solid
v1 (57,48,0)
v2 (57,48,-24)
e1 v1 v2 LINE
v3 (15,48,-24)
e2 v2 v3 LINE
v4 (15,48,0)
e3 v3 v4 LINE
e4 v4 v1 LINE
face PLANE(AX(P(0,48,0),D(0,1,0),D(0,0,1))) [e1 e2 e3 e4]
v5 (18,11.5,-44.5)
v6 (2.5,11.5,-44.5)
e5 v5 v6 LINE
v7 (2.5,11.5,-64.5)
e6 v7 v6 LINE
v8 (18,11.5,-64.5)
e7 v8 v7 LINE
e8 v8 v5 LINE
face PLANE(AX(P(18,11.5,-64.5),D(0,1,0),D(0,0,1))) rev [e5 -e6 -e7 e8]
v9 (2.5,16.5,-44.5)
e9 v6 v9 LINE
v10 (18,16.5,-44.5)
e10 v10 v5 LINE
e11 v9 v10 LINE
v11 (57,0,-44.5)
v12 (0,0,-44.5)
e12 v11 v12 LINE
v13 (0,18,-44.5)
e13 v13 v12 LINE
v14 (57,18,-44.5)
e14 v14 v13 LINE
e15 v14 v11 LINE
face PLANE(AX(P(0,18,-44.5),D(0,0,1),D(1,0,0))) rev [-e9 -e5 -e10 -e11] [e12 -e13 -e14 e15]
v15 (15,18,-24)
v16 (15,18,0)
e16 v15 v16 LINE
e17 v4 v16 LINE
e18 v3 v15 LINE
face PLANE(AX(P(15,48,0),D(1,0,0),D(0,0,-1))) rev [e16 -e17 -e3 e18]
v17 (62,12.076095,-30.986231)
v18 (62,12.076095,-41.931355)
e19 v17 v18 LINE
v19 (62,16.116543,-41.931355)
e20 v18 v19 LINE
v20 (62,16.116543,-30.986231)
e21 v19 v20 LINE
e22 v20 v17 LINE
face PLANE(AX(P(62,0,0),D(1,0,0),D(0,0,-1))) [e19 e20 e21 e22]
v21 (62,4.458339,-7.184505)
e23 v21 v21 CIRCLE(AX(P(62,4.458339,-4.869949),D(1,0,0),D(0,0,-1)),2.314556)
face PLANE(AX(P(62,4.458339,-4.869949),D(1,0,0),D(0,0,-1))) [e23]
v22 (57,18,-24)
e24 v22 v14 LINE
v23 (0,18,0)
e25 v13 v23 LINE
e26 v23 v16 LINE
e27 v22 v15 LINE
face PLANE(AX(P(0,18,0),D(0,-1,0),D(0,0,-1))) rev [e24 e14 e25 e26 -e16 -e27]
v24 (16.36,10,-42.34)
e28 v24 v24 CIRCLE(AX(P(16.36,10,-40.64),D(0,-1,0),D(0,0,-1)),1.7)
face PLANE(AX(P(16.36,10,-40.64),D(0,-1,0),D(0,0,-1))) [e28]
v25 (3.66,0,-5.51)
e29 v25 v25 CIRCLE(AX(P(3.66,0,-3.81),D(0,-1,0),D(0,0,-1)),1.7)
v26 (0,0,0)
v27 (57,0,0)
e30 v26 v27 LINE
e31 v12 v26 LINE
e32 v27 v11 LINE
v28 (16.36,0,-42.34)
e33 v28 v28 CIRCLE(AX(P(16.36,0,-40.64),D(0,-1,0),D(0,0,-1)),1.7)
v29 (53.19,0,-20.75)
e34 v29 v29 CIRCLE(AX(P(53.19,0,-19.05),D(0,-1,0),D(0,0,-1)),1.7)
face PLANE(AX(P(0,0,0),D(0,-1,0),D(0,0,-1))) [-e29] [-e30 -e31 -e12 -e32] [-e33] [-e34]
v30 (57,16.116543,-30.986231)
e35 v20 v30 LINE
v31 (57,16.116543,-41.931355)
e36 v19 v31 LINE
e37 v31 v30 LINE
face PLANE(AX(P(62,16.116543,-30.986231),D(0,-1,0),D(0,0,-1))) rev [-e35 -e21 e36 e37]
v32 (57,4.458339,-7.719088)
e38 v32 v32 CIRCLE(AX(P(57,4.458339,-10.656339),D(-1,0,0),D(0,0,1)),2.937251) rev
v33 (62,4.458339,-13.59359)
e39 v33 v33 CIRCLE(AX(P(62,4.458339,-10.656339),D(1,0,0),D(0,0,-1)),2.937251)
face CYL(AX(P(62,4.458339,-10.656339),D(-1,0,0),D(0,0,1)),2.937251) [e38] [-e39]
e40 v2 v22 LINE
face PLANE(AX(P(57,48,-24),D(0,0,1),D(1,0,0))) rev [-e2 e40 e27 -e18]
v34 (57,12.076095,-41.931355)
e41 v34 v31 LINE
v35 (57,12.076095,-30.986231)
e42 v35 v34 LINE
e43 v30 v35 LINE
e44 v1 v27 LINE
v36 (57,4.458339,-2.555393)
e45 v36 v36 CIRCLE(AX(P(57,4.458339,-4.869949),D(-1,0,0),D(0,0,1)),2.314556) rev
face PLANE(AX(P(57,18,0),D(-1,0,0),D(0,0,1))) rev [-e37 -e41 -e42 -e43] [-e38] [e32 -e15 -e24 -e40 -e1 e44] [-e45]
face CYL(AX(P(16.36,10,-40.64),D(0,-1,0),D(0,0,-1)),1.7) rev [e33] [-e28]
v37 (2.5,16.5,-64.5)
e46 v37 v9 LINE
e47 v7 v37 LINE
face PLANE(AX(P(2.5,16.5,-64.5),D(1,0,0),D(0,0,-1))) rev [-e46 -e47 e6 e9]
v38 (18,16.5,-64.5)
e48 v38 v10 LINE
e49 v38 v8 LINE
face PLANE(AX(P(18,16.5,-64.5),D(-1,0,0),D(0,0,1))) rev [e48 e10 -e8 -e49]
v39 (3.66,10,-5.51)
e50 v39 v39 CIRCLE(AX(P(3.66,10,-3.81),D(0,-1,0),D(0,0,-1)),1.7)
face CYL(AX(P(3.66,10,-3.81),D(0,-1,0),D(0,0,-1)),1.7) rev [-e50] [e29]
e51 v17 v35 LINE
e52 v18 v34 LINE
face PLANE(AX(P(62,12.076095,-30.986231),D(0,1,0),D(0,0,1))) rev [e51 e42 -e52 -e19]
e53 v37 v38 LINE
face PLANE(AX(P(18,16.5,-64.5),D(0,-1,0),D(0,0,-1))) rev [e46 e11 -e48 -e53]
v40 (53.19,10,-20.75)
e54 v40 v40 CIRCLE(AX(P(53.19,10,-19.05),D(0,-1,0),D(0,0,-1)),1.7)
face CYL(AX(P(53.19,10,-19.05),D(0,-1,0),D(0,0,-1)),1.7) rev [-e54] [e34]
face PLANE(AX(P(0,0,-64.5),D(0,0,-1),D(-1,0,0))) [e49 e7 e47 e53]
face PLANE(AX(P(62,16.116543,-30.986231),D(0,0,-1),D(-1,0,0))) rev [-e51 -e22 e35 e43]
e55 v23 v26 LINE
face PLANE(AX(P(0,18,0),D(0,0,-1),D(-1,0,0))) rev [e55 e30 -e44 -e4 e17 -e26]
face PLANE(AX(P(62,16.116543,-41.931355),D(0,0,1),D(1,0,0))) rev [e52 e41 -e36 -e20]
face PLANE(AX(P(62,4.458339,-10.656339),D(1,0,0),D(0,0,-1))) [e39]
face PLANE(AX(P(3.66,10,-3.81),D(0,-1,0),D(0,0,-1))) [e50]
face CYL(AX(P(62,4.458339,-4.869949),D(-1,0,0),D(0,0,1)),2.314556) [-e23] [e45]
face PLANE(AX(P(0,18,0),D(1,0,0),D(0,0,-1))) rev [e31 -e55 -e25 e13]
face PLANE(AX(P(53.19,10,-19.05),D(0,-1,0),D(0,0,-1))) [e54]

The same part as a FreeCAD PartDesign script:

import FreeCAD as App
import Part
import Sketcher

doc = App.newDocument("Part")
body = doc.addObject("PartDesign::Body", "Body")

# Sketch on XZ plane
sketch1 = body.newObject("Sketcher::SketchObject", "Sketch")
sketch1.AttachmentSupport = (doc.getObject("XZ_Plane"), [""])
sketch1.MapMode = "FlatFace"
sketch1.addGeometry(Part.LineSegment(App.Vector(0, -44, 0), App.Vector(0, 0, 0)), False)
sketch1.addGeometry(Part.LineSegment(App.Vector(0, 0, 0), App.Vector(57, 0, 0)), False)
sketch1.addGeometry(Part.LineSegment(App.Vector(57, 0, 0), App.Vector(57, -44, 0)), False)
sketch1.addGeometry(Part.LineSegment(App.Vector(57, -44, 0), App.Vector(0, -44, 0)), False)
sketch1.addConstraint(Sketcher.Constraint("Coincident", 0, 2, 1, 1))
sketch1.addConstraint(Sketcher.Constraint("Coincident", 1, 2, 2, 1))
sketch1.addConstraint(Sketcher.Constraint("Coincident", 2, 2, 3, 1))
sketch1.addConstraint(Sketcher.Constraint("Coincident", 3, 2, 0, 1))
sketch1.addConstraint(Sketcher.Constraint("Vertical", 0))
sketch1.addConstraint(Sketcher.Constraint("Horizontal", 1))
sketch1.addConstraint(Sketcher.Constraint("Vertical", 2))
sketch1.addConstraint(Sketcher.Constraint("Horizontal", 3))
sketch1.addConstraint(Sketcher.Constraint("Coincident", 0, 2, -1, 1))
sketch1.addConstraint(Sketcher.Constraint("DistanceX", 1, 1, 1, 2, 57.0))
sketch1.addConstraint(Sketcher.Constraint("DistanceY", 0, 1, 0, 2, 44.5))
pad1 = body.newObject("PartDesign::Pad", "Pad")
pad1.Profile = sketch1
pad1.Length = 18
pad1.Reversed = True

# Sketch on YZ plane
sketch2 = body.newObject("Sketcher::SketchObject", "Sketch001")
sketch2.AttachmentSupport = (doc.getObject("YZ_Plane"), [""])
sketch2.MapMode = "FlatFace"
sketch2.AttachmentOffset = App.Placement(App.Vector(0, 0, 57), App.Rotation())
sketch2.addGeometry(Part.Circle(App.Vector(4.5, -4.9, 0), App.Vector(0, 0, 1), 2.3), False)
sketch2.addGeometry(Part.Circle(App.Vector(4.5, -10.7, 0), App.Vector(0, 0, 1), 2.9), False)
sketch2.addGeometry(Part.LineSegment(App.Vector(16.1, -31, 0), App.Vector(12.1, -31, 0)), False)
sketch2.addGeometry(Part.LineSegment(App.Vector(12.1, -31, 0), App.Vector(12.1, -41.9, 0)), False)
sketch2.addGeometry(Part.LineSegment(App.Vector(12.1, -41.9, 0), App.Vector(16.1, -41.9, 0)), False)
sketch2.addGeometry(Part.LineSegment(App.Vector(16.1, -41.9, 0), App.Vector(16.1, -31, 0)), False)
sketch2.addConstraint(Sketcher.Constraint("Coincident", 2, 2, 3, 1))
sketch2.addConstraint(Sketcher.Constraint("Coincident", 3, 2, 4, 1))
sketch2.addConstraint(Sketcher.Constraint("Coincident", 4, 2, 5, 1))
sketch2.addConstraint(Sketcher.Constraint("Coincident", 5, 2, 2, 1))
sketch2.addConstraint(Sketcher.Constraint("Horizontal", 2))
sketch2.addConstraint(Sketcher.Constraint("Vertical", 3))
sketch2.addConstraint(Sketcher.Constraint("Horizontal", 4))
sketch2.addConstraint(Sketcher.Constraint("Vertical", 5))
sketch2.addConstraint(Sketcher.Constraint("Vertical", 0, 3, 1, 3))
sketch2.addConstraint(Sketcher.Constraint("Diameter", 1, 5.874502))
sketch2.addConstraint(Sketcher.Constraint("Diameter", 0, 4.629112))
sketch2.addConstraint(Sketcher.Constraint("DistanceX", 2, 2, 2, 1, 4.040448))
sketch2.addConstraint(Sketcher.Constraint("DistanceY", 3, 2, 3, 1, 10.945124))
sketch2.addConstraint(Sketcher.Constraint("DistanceX", -1, 1, 0, 3, 4.458339))
sketch2.addConstraint(Sketcher.Constraint("DistanceY", 0, 3, -1, 1, 4.869949))
sketch2.addConstraint(Sketcher.Constraint("DistanceY", 1, 3, -1, 1, 10.656339))
sketch2.addConstraint(Sketcher.Constraint("DistanceY", 2, 2, -1, 1, 30.986231))
sketch2.addConstraint(Sketcher.Constraint("DistanceX", -1, 1, 2, 2, 12.076095))
pad2 = body.newObject("PartDesign::Pad", "Pad001")
pad2.Profile = sketch2
pad2.Length = 5

# Sketch on XZ plane
sketch3 = body.newObject("Sketcher::SketchObject", "Sketch002")
sketch3.AttachmentSupport = (doc.getObject("XZ_Plane"), [""])
sketch3.MapMode = "FlatFace"
sketch3.AttachmentOffset = App.Placement(App.Vector(0, 0, -18), App.Rotation())
sketch3.addGeometry(Part.LineSegment(App.Vector(15, -24, 0), App.Vector(15, 0, 0)), False)
sketch3.addGeometry(Part.LineSegment(App.Vector(15, 0, 0), App.Vector(57, 0, 0)), False)
sketch3.addGeometry(Part.LineSegment(App.Vector(57, 0, 0), App.Vector(57, -24, 0)), False)
sketch3.addGeometry(Part.LineSegment(App.Vector(57, -24, 0), App.Vector(15, -24, 0)), False)
sketch3.addConstraint(Sketcher.Constraint("Coincident", 0, 2, 1, 1))
sketch3.addConstraint(Sketcher.Constraint("Coincident", 1, 2, 2, 1))
sketch3.addConstraint(Sketcher.Constraint("Coincident", 2, 2, 3, 1))
sketch3.addConstraint(Sketcher.Constraint("Coincident", 3, 2, 0, 1))
sketch3.addConstraint(Sketcher.Constraint("Vertical", 0))
sketch3.addConstraint(Sketcher.Constraint("Horizontal", 1))
sketch3.addConstraint(Sketcher.Constraint("Vertical", 2))
sketch3.addConstraint(Sketcher.Constraint("Horizontal", 3))
sketch3.addConstraint(Sketcher.Constraint("PointOnObject", 0, 2, -1))
sketch3.addConstraint(Sketcher.Constraint("DistanceX", 1, 1, 1, 2, 42.0))
sketch3.addConstraint(Sketcher.Constraint("DistanceY", 0, 1, 0, 2, 24.0))
sketch3.addConstraint(Sketcher.Constraint("DistanceX", -1, 1, 0, 2, 15.0))
pad3 = body.newObject("PartDesign::Pad", "Pad002")
pad3.Profile = sketch3
pad3.Length = 30
pad3.Reversed = True

# Sketch on XY plane
sketch4 = body.newObject("Sketcher::SketchObject", "Sketch003")
sketch4.AttachmentSupport = (doc.getObject("XY_Plane"), [""])
sketch4.MapMode = "FlatFace"
sketch4.AttachmentOffset = App.Placement(App.Vector(0, 0, -44.5), App.Rotation())
sketch4.addGeometry(Part.LineSegment(App.Vector(18, 16, 0), App.Vector(18, 12, 0)), False)
sketch4.addGeometry(Part.LineSegment(App.Vector(18, 12, 0), App.Vector(2, 12, 0)), False)
sketch4.addGeometry(Part.LineSegment(App.Vector(2, 12, 0), App.Vector(2, 16, 0)), False)
sketch4.addGeometry(Part.LineSegment(App.Vector(2, 16, 0), App.Vector(18, 16, 0)), False)
sketch4.addConstraint(Sketcher.Constraint("Coincident", 0, 2, 1, 1))
sketch4.addConstraint(Sketcher.Constraint("Coincident", 1, 2, 2, 1))
sketch4.addConstraint(Sketcher.Constraint("Coincident", 2, 2, 3, 1))
sketch4.addConstraint(Sketcher.Constraint("Coincident", 3, 2, 0, 1))
sketch4.addConstraint(Sketcher.Constraint("Vertical", 0))
sketch4.addConstraint(Sketcher.Constraint("Horizontal", 1))
sketch4.addConstraint(Sketcher.Constraint("Vertical", 2))
sketch4.addConstraint(Sketcher.Constraint("Horizontal", 3))
sketch4.addConstraint(Sketcher.Constraint("DistanceY", 0, 2, 0, 1, 5.0))
sketch4.addConstraint(Sketcher.Constraint("DistanceX", 1, 2, 1, 1, 15.5))
sketch4.addConstraint(Sketcher.Constraint("DistanceX", -1, 1, 0, 2, 18.0))
sketch4.addConstraint(Sketcher.Constraint("DistanceY", -1, 1, 0, 2, 11.5))
pad4 = body.newObject("PartDesign::Pad", "Pad003")
pad4.Profile = sketch4
pad4.Length = 20
pad4.Reversed = True

# Sketch on XZ plane
sketch5 = body.newObject("Sketcher::SketchObject", "Sketch004")
sketch5.AttachmentSupport = (doc.getObject("XZ_Plane"), [""])
sketch5.MapMode = "FlatFace"
sketch5.addGeometry(Part.Circle(App.Vector(3.7, -3.8, 0), App.Vector(0, 0, 1), 1.7), False)
sketch5.addGeometry(Part.Circle(App.Vector(16.4, -40.6, 0), App.Vector(0, 0, 1), 1.7), False)
sketch5.addGeometry(Part.Circle(App.Vector(53.2, -19.1, 0), App.Vector(0, 0, 1), 1.7), False)
sketch5.addConstraint(Sketcher.Constraint("Equal", 0, 1))
sketch5.addConstraint(Sketcher.Constraint("Equal", 1, 2))
sketch5.addConstraint(Sketcher.Constraint("Diameter", 0, 3.4))
sketch5.addConstraint(Sketcher.Constraint("DistanceX", 0, 3, 1, 3, 12.7))
sketch5.addConstraint(Sketcher.Constraint("DistanceX", -1, 1, 0, 3, 3.66))
sketch5.addConstraint(Sketcher.Constraint("DistanceY", 0, 3, -1, 1, 3.81))
sketch5.addConstraint(Sketcher.Constraint("DistanceY", 1, 3, -1, 1, 40.64))
sketch5.addConstraint(Sketcher.Constraint("DistanceX", -1, 1, 2, 3, 53.19))
sketch5.addConstraint(Sketcher.Constraint("DistanceY", 2, 3, -1, 1, 19.05))
pocket1 = body.newObject("PartDesign::Pocket", "Pocket")
pocket1.Profile = sketch5
pocket1.Length = 10

doc.recompute()
